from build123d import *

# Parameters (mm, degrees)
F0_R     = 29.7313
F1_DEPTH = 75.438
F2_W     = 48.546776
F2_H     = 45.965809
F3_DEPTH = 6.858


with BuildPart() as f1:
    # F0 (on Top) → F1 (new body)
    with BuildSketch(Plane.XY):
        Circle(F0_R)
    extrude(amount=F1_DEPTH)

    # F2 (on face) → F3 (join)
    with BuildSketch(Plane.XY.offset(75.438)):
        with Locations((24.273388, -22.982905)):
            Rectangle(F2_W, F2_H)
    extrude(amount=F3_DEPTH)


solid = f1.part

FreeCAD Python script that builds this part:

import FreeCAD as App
import Part
import Sketcher

V = App.Vector
Q = App.Units.Quantity


def add_polygon(sketch, points):
    """Adds a closed chain of lines whose ends are joined by coincident constraints."""
    first, n = sketch.GeometryCount, len(points)
    for a, b in zip(points, points[1:] + points[:1]):
        sketch.addGeometry(Part.LineSegment(App.Vector(*a, 0), App.Vector(*b, 0)), False)
    for i in range(n):
        sketch.addConstraint(Sketcher.Constraint("Coincident", first + i, 2, first + (i + 1) % n, 1))

doc = App.newDocument("Part")
body = doc.addObject("PartDesign::Body", "Body")

# Sketch on XY plane
sketch1 = body.newObject("Sketcher::SketchObject", "Sketch")
sketch1.AttachmentSupport = (doc.getObject("XY_Plane"), [""])
sketch1.MapMode = "FlatFace"
sketch1.addGeometry(Part.Circle(V(0, 0, 0), V(0, 0, 1), 30), False)
sketch1.addConstraint(Sketcher.Constraint("Coincident", 0, 3, -1, 1))
sketch1.addConstraint(Sketcher.Constraint("Diameter", 0, Q("59.4626 mm")))
pad1 = body.newObject("PartDesign::Pad", "Pad")
pad1.Profile = sketch1
pad1.Length = Q("2.97 in")

# Sketch on XY plane
sketch2 = body.newObject("Sketcher::SketchObject", "Sketch001")
sketch2.AttachmentSupport = (doc.getObject("XY_Plane"), [""])
sketch2.MapMode = "FlatFace"
sketch2.AttachmentOffset = App.Placement(V(0, 0, 2.97 * 25.4), App.Rotation())
add_polygon(sketch2, [(0, 0), (0, -46), (49, -46), (49, 0)])  # lines 0-3
sketch2.addConstraint(Sketcher.Constraint("Vertical", 0))
sketch2.addConstraint(Sketcher.Constraint("Horizontal", 1))
sketch2.addConstraint(Sketcher.Constraint("Vertical", 2))
sketch2.addConstraint(Sketcher.Constraint("Horizontal", 3))
sketch2.addConstraint(Sketcher.Constraint("Coincident", 3, 2, -1, 1))
sketch2.addConstraint(Sketcher.Constraint("DistanceY", 0, 2, 0, 1, Q("45.965809 mm")))
sketch2.addConstraint(Sketcher.Constraint("DistanceX", 1, 1, 1, 2, Q("48.546776 mm")))
pad2 = body.newObject("PartDesign::Pad", "Pad001")
pad2.Profile = sketch2
pad2.Length = Q("0.27 in")

doc.recompute()
